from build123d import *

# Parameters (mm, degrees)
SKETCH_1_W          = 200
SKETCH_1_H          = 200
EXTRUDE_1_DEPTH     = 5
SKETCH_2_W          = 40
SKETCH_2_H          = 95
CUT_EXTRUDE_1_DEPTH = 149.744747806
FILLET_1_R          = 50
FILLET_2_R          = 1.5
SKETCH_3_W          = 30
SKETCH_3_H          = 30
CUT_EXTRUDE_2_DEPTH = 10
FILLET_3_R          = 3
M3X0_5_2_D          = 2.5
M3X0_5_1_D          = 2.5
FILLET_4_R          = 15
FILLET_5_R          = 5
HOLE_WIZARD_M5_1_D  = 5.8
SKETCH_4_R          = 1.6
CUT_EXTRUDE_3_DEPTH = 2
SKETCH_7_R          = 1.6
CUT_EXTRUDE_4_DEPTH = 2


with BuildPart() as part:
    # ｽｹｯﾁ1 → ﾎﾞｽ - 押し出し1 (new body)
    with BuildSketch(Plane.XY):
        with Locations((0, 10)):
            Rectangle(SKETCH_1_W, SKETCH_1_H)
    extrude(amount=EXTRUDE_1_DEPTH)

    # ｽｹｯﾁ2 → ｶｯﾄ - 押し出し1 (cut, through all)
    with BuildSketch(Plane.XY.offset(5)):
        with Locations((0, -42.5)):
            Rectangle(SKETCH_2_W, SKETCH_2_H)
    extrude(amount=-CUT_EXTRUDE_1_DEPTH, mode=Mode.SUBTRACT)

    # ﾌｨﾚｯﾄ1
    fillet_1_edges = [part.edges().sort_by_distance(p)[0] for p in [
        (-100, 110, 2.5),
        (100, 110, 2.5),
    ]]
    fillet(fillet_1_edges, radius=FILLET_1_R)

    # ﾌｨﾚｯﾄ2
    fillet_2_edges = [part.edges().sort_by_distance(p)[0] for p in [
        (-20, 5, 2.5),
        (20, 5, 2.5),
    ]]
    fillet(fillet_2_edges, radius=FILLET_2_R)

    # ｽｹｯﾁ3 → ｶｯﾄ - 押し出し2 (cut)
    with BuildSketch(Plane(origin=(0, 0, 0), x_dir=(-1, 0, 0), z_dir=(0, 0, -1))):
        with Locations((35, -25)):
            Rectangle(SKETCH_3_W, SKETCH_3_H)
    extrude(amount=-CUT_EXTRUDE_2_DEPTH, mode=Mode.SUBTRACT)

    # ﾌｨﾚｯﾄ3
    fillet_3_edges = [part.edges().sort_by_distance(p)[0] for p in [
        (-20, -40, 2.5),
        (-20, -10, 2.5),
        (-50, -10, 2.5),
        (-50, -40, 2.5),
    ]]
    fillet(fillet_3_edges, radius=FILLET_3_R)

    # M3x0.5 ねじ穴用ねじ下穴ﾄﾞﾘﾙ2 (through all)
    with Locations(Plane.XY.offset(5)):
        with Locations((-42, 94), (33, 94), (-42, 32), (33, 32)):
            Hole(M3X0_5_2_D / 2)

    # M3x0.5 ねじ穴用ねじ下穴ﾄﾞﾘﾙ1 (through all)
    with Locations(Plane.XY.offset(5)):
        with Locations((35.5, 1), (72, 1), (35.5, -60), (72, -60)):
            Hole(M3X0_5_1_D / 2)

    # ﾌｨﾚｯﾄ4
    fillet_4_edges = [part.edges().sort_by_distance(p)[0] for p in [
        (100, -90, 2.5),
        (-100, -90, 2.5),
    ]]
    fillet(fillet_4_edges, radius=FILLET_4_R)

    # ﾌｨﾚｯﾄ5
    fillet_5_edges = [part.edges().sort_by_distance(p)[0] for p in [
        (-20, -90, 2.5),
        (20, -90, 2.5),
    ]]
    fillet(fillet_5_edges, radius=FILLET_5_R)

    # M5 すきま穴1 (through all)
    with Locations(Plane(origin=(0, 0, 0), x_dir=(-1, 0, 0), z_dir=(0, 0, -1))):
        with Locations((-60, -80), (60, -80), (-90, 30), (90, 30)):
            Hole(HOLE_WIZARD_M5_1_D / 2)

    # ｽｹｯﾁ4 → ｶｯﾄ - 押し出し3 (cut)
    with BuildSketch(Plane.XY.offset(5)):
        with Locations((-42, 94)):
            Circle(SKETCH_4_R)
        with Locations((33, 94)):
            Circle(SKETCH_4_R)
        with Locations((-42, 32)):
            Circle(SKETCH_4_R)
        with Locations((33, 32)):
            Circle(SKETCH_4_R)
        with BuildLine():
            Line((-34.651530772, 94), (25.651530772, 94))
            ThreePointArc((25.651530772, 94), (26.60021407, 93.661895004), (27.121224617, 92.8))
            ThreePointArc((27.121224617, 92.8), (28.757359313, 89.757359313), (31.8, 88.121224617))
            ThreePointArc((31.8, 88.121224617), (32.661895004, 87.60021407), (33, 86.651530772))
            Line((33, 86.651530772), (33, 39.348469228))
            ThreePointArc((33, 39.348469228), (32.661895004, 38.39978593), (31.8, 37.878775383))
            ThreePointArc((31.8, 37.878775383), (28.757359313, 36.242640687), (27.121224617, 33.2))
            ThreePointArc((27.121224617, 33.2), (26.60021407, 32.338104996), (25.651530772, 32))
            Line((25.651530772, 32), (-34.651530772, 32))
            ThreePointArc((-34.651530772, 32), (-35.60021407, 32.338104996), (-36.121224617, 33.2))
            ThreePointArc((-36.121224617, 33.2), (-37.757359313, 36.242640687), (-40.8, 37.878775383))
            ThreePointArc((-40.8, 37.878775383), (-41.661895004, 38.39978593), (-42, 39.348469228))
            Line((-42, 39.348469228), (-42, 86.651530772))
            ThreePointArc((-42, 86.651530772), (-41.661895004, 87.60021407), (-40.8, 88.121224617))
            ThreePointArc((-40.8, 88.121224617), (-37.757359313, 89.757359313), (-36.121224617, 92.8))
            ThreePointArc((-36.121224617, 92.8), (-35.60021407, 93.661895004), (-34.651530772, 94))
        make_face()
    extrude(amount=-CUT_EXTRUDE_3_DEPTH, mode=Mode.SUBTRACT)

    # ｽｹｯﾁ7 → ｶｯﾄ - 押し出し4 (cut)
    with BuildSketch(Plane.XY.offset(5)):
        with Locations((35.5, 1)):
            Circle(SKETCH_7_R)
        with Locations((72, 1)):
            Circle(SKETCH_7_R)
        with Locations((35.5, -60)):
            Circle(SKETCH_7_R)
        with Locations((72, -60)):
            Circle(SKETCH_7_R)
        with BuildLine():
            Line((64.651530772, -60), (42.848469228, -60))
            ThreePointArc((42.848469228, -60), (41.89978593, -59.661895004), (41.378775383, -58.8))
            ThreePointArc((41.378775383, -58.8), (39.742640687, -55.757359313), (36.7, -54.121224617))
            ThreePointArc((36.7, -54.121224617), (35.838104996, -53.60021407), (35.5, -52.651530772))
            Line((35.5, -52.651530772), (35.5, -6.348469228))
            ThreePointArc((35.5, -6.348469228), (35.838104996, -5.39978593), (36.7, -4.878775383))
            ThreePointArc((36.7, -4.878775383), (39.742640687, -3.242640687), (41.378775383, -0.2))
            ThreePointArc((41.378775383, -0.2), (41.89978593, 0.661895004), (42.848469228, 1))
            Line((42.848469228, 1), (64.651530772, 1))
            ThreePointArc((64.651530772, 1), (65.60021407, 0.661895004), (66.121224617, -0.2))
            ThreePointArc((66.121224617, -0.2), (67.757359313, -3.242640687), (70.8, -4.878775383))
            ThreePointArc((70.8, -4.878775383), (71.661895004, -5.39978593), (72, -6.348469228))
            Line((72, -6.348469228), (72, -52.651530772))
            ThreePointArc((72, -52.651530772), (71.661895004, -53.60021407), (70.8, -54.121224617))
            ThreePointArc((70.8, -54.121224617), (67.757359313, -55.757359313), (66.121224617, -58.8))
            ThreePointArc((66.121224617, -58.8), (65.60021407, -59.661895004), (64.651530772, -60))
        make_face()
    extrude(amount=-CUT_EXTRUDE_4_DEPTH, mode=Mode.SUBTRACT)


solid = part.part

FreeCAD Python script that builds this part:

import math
import FreeCAD as App
import Part
import Sketcher


def edges_at(feature, points):
    """Names of the edges that pass closest to the given points."""
    edges = feature.Shape.Edges
    near = lambda p: min(range(len(edges)), key=lambda i: edges[i].distToShape(Part.Vertex(*p))[0])
    return sorted({f"Edge{near(p) + 1}" for p in points})

doc = App.newDocument("Part")
body = doc.addObject("PartDesign::Body", "Body")

# Sketch on XY plane
sketch1 = body.newObject("Sketcher::SketchObject", "Sketch")
sketch1.AttachmentSupport = (doc.getObject("XY_Plane"), [""])
sketch1.MapMode = "FlatFace"
sketch1.addGeometry([
    Part.LineSegment(App.Vector(-100, 110, 0), App.Vector(-100, -90, 0)),
    Part.LineSegment(App.Vector(-100, -90, 0), App.Vector(100, -90, 0)),
    Part.LineSegment(App.Vector(100, -90, 0), App.Vector(100, 110, 0)),
    Part.LineSegment(App.Vector(100, 110, 0), App.Vector(-100, 110, 0)),
], False)
sketch1.addConstraint([
    Sketcher.Constraint("Coincident", 0, 2, 1, 1),
    Sketcher.Constraint("Coincident", 1, 2, 2, 1),
    Sketcher.Constraint("Coincident", 2, 2, 3, 1),
    Sketcher.Constraint("Coincident", 3, 2, 0, 1),
    Sketcher.Constraint("Vertical", 0),
    Sketcher.Constraint("Horizontal", 1),
    Sketcher.Constraint("Vertical", 2),
    Sketcher.Constraint("Horizontal", 3),
    Sketcher.Constraint("Equal", 3, 0),
    Sketcher.Constraint("DistanceX", 1, 1, 1, 2, 200.0),
    Sketcher.Constraint("DistanceX", 0, 2, -1, 1, 100.0),
    Sketcher.Constraint("DistanceY", 0, 2, -1, 1, 90.0),
])
pad1 = body.newObject("PartDesign::Pad", "Pad")
pad1.Profile = sketch1
pad1.Length = 5

# Sketch on XY plane
sketch2 = body.newObject("Sketcher::SketchObject", "Sketch001")
sketch2.AttachmentSupport = (doc.getObject("XY_Plane"), [""])
sketch2.MapMode = "FlatFace"
sketch2.AttachmentOffset = App.Placement(App.Vector(0, 0, 5), App.Rotation())
sketch2.addGeometry([
    Part.LineSegment(App.Vector(-20, 5, 0), App.Vector(-20, -90, 0)),
    Part.LineSegment(App.Vector(-20, -90, 0), App.Vector(20, -90, 0)),
    Part.LineSegment(App.Vector(20, -90, 0), App.Vector(20, 5, 0)),
    Part.LineSegment(App.Vector(20, 5, 0), App.Vector(-20, 5, 0)),
], False)
sketch2.addConstraint([
    Sketcher.Constraint("Coincident", 0, 2, 1, 1),
    Sketcher.Constraint("Coincident", 1, 2, 2, 1),
    Sketcher.Constraint("Coincident", 2, 2, 3, 1),
    Sketcher.Constraint("Coincident", 3, 2, 0, 1),
    Sketcher.Constraint("Vertical", 0),
    Sketcher.Constraint("Horizontal", 1),
    Sketcher.Constraint("Vertical", 2),
    Sketcher.Constraint("Horizontal", 3),
    Sketcher.Constraint("DistanceX", 1, 1, 1, 2, 40.0),
    Sketcher.Constraint("DistanceY", 0, 2, 0, 1, 95.0),
    Sketcher.Constraint("DistanceX", 0, 2, -1, 1, 20.0),
    Sketcher.Constraint("DistanceY", 0, 2, -1, 1, 90.0),
])
pocket1 = body.newObject("PartDesign::Pocket", "Pocket")
pocket1.Profile = sketch2
pocket1.Type = "ThroughAll"
doc.recompute()

fillet = body.newObject("PartDesign::Fillet", "Fillet")
fillet.Base = (pocket1, edges_at(pocket1, [(-100, 110, 2.5), (100, 110, 2.5)]))
fillet.Radius = 50
doc.recompute()

fillet2 = body.newObject("PartDesign::Fillet", "Fillet001")
fillet2.Base = (fillet, edges_at(fillet, [(-20, 5, 2.5), (20, 5, 2.5)]))
fillet2.Radius = 1.5

# Sketch on XY plane
sketch3 = body.newObject("Sketcher::SketchObject", "Sketch002")
sketch3.AttachmentSupport = (doc.getObject("XY_Plane"), [""])
sketch3.MapMode = "FlatFace"
sketch3.addGeometry([
    Part.LineSegment(App.Vector(-20, -10, 0), App.Vector(-20, -40, 0)),
    Part.LineSegment(App.Vector(-20, -40, 0), App.Vector(-50, -40, 0)),
    Part.LineSegment(App.Vector(-50, -40, 0), App.Vector(-50, -10, 0)),
    Part.LineSegment(App.Vector(-50, -10, 0), App.Vector(-20, -10, 0)),
], False)
sketch3.addConstraint([
    Sketcher.Constraint("Coincident", 0, 2, 1, 1),
    Sketcher.Constraint("Coincident", 1, 2, 2, 1),
    Sketcher.Constraint("Coincident", 2, 2, 3, 1),
    Sketcher.Constraint("Coincident", 3, 2, 0, 1),
    Sketcher.Constraint("Vertical", 0),
    Sketcher.Constraint("Horizontal", 1),
    Sketcher.Constraint("Vertical", 2),
    Sketcher.Constraint("Horizontal", 3),
    Sketcher.Constraint("Equal", 3, 0),
    Sketcher.Constraint("DistanceX", 1, 2, 1, 1, 30.0),
    Sketcher.Constraint("DistanceX", 0, 2, -1, 1, 20.0),
    Sketcher.Constraint("DistanceY", 0, 2, -1, 1, 40.0),
])
pocket2 = body.newObject("PartDesign::Pocket", "Pocket001")
pocket2.Profile = sketch3
pocket2.Length = 10
pocket2.Reversed = True
doc.recompute()

fillet3 = body.newObject("PartDesign::Fillet", "Fillet002")
fillet3.Base = (pocket2, edges_at(pocket2, [
    (-20, -40, 2.5),
    (-20, -10, 2.5),
    (-50, -10, 2.5),
    (-50, -40, 2.5),
]))
fillet3.Radius = 3

# Sketch on XY plane
sketch4 = body.newObject("Sketcher::SketchObject", "Sketch003")
sketch4.AttachmentSupport = (doc.getObject("XY_Plane"), [""])
sketch4.MapMode = "FlatFace"
sketch4.AttachmentOffset = App.Placement(App.Vector(0, 0, 5), App.Rotation())
sketch4.addGeometry([
    Part.Circle(App.Vector(-42, 94, 0), App.Vector(0, 0, 1), 1.2),
    Part.Circle(App.Vector(33, 94, 0), App.Vector(0, 0, 1), 1.2),
    Part.Circle(App.Vector(-42, 32, 0), App.Vector(0, 0, 1), 1.2),
    Part.Circle(App.Vector(33, 32, 0), App.Vector(0, 0, 1), 1.2),
], False)
sketch4.addConstraint([
    Sketcher.Constraint("Equal", 0, 1),
    Sketcher.Constraint("Equal", 1, 2),
    Sketcher.Constraint("Equal", 2, 3),
    Sketcher.Constraint("Horizontal", 0, 3, 1, 3),
    Sketcher.Constraint("Horizontal", 2, 3, 3, 3),
    Sketcher.Constraint("Vertical", 0, 3, 2, 3),
    Sketcher.Constraint("Vertical", 1, 3, 3, 3),
    Sketcher.Constraint("Diameter", 0, 2.5),
    Sketcher.Constraint("DistanceX", 0, 3, -1, 1, 42.0),
    Sketcher.Constraint("DistanceY", -1, 1, 0, 3, 94.0),
    Sketcher.Constraint("DistanceX", -1, 1, 1, 3, 33.0),
    Sketcher.Constraint("DistanceY", -1, 1, 2, 3, 32.0),
])
doc.recompute()
hole = body.newObject("PartDesign::Hole", "Hole")
hole.Profile = sketch4
hole.ThreadType = "None"
hole.Diameter = 2.5
hole.DepthType = "ThroughAll"

# Sketch on XY plane
sketch5 = body.newObject("Sketcher::SketchObject", "Sketch004")
sketch5.AttachmentSupport = (doc.getObject("XY_Plane"), [""])
sketch5.MapMode = "FlatFace"
sketch5.AttachmentOffset = App.Placement(App.Vector(0, 0, 5), App.Rotation())
sketch5.addGeometry([
    Part.Circle(App.Vector(35.5, 1, 0), App.Vector(0, 0, 1), 1.2),
    Part.Circle(App.Vector(72, 1, 0), App.Vector(0, 0, 1), 1.2),
    Part.Circle(App.Vector(35.5, -60, 0), App.Vector(0, 0, 1), 1.2),
    Part.Circle(App.Vector(72, -60, 0), App.Vector(0, 0, 1), 1.2),
], False)
sketch5.addConstraint([
    Sketcher.Constraint("Equal", 0, 1),
    Sketcher.Constraint("Equal", 1, 2),
    Sketcher.Constraint("Equal", 2, 3),
    Sketcher.Constraint("Horizontal", 0, 3, 1, 3),
    Sketcher.Constraint("Horizontal", 2, 3, 3, 3),
    Sketcher.Constraint("Vertical", 0, 3, 2, 3),
    Sketcher.Constraint("Vertical", 1, 3, 3, 3),
    Sketcher.Constraint("Diameter", 0, 2.5),
    Sketcher.Constraint("DistanceY", -1, 1, 0, 3, 1.0),
    Sketcher.Constraint("DistanceX", -1, 1, 1, 3, 72.0),
    Sketcher.Constraint("DistanceY", 2, 3, -1, 1, 60.0),
    Sketcher.Constraint("DistanceX", -1, 1, 0, 3, 35.5),
])
doc.recompute()
hole2 = body.newObject("PartDesign::Hole", "Hole001")
hole2.Profile = sketch5
hole2.ThreadType = "None"
hole2.Diameter = 2.5
hole2.DepthType = "ThroughAll"
doc.recompute()

fillet4 = body.newObject("PartDesign::Fillet", "Fillet003")
fillet4.Base = (hole2, edges_at(hole2, [(100, -90, 2.5), (-100, -90, 2.5)]))
fillet4.Radius = 15
doc.recompute()

fillet5 = body.newObject("PartDesign::Fillet", "Fillet004")
fillet5.Base = (fillet4, edges_at(fillet4, [(-20, -90, 2.5), (20, -90, 2.5)]))
fillet5.Radius = 5

# Sketch on XY plane
sketch6 = body.newObject("Sketcher::SketchObject", "Sketch005")
sketch6.AttachmentSupport = (doc.getObject("XY_Plane"), [""])
sketch6.MapMode = "FlatFace"
sketch6.addGeometry([
    Part.Circle(App.Vector(60, -80, 0), App.Vector(0, 0, 1), 2.9),
    Part.Circle(App.Vector(-60, -80, 0), App.Vector(0, 0, 1), 2.9),
    Part.Circle(App.Vector(90, 30, 0), App.Vector(0, 0, 1), 2.9),
    Part.Circle(App.Vector(-90, 30, 0), App.Vector(0, 0, 1), 2.9),
], False)
sketch6.addConstraint([
    Sketcher.Constraint("Equal", 0, 1),
    Sketcher.Constraint("Equal", 1, 2),
    Sketcher.Constraint("Equal", 2, 3),
    Sketcher.Constraint("Symmetric", 0, 3, 1, 3, -2),
    Sketcher.Constraint("Symmetric", 2, 3, 3, 3, -2),
    Sketcher.Constraint("Diameter", 0, 5.8),
    Sketcher.Constraint("DistanceX", -1, 1, 0, 3, 60.0),
    Sketcher.Constraint("DistanceY", 0, 3, -1, 1, 80.0),
    Sketcher.Constraint("DistanceX", -1, 1, 2, 3, 90.0),
    Sketcher.Constraint("DistanceY", -1, 1, 2, 3, 30.0),
])
doc.recompute()
hole3 = body.newObject("PartDesign::Hole", "Hole002")
hole3.Profile = sketch6
hole3.ThreadType = "None"
hole3.Diameter = 5.8
hole3.DepthType = "ThroughAll"
hole3.Reversed = True

# Sketch on XY plane
sketch7 = body.newObject("Sketcher::SketchObject", "Sketch006")
sketch7.AttachmentSupport = (doc.getObject("XY_Plane"), [""])
sketch7.MapMode = "FlatFace"
sketch7.AttachmentOffset = App.Placement(App.Vector(0, 0, 5), App.Rotation())
sketch7.addGeometry([
    Part.Circle(App.Vector(-42, 94, 0), App.Vector(0, 0, 1), 1.6),  # 0
    Part.Circle(App.Vector(33, 94, 0), App.Vector(0, 0, 1), 1.6),  # 1
    Part.Circle(App.Vector(-42, 32, 0), App.Vector(0, 0, 1), 1.6),  # 2
    Part.Circle(App.Vector(33, 32, 0), App.Vector(0, 0, 1), 1.6),  # 3
    Part.LineSegment(App.Vector(25.7, 94, 0), App.Vector(-34.7, 94, 0)),  # 4
    Part.ArcOfCircle(Part.Circle(App.Vector(-34.7, 92.5, 0), App.Vector(0, 0, 1), 1.5), math.radians(90), math.radians(168)),  # 5
    Part.ArcOfCircle(Part.Circle(App.Vector(-42, 94, 0), App.Vector(0, 0, 1), 6), math.radians(-78), math.radians(-12)),  # 6
    Part.ArcOfCircle(Part.Circle(App.Vector(-40.5, 86.7, 0), App.Vector(0, 0, 1), 1.5), math.radians(102), math.radians(180)),  # 7
    Part.LineSegment(App.Vector(-42, 86.7, 0), App.Vector(-42, 39.3, 0)),  # 8
    Part.ArcOfCircle(Part.Circle(App.Vector(-40.5, 39.3, 0), App.Vector(0, 0, 1), 1.5), math.radians(180), math.radians(258)),  # 9
    Part.ArcOfCircle(Part.Circle(App.Vector(-42, 32, 0), App.Vector(0, 0, 1), 6), math.radians(12), math.radians(78)),  # 10
    Part.ArcOfCircle(Part.Circle(App.Vector(-34.7, 33.5, 0), App.Vector(0, 0, 1), 1.5), math.radians(-168), math.radians(-90)),  # 11
    Part.LineSegment(App.Vector(-34.7, 32, 0), App.Vector(25.7, 32, 0)),  # 12
    Part.ArcOfCircle(Part.Circle(App.Vector(25.7, 33.5, 0), App.Vector(0, 0, 1), 1.5), math.radians(-90), math.radians(-12)),  # 13
    Part.ArcOfCircle(Part.Circle(App.Vector(33, 32, 0), App.Vector(0, 0, 1), 6), math.radians(102), math.radians(168)),  # 14
    Part.ArcOfCircle(Part.Circle(App.Vector(31.5, 39.3, 0), App.Vector(0, 0, 1), 1.5), math.radians(-78), math.radians(0)),  # 15
    Part.LineSegment(App.Vector(33, 39.3, 0), App.Vector(33, 86.7, 0)),  # 16
    Part.ArcOfCircle(Part.Circle(App.Vector(31.5, 86.7, 0), App.Vector(0, 0, 1), 1.5), math.radians(0), math.radians(78)),  # 17
    Part.ArcOfCircle(Part.Circle(App.Vector(33, 94, 0), App.Vector(0, 0, 1), 6), math.radians(-168), math.radians(-102)),  # 18
    Part.ArcOfCircle(Part.Circle(App.Vector(25.7, 92.5, 0), App.Vector(0, 0, 1), 1.5), math.radians(12), math.radians(90)),  # 19
], False)
sketch7.addConstraint([
    Sketcher.Constraint("Tangent", 4, 2, 5, 1),
    Sketcher.Constraint("Tangent", 5, 2, 6, 2),
    Sketcher.Constraint("Tangent", 6, 1, 7, 1),
    Sketcher.Constraint("Tangent", 7, 2, 8, 1),
    Sketcher.Constraint("Tangent", 8, 2, 9, 1),
    Sketcher.Constraint("Tangent", 9, 2, 10, 2),
    Sketcher.Constraint("Tangent", 10, 1, 11, 1),
    Sketcher.Constraint("Tangent", 11, 2, 12, 1),
    Sketcher.Constraint("Tangent", 12, 2, 13, 1),
    Sketcher.Constraint("Tangent", 13, 2, 14, 2),
    Sketcher.Constraint("Tangent", 14, 1, 15, 1),
    Sketcher.Constraint("Tangent", 15, 2, 16, 1),
    Sketcher.Constraint("Tangent", 16, 2, 17, 1),
    Sketcher.Constraint("Tangent", 17, 2, 18, 2),
    Sketcher.Constraint("Tangent", 18, 1, 19, 1),
    Sketcher.Constraint("Tangent", 19, 2, 4, 1),
    Sketcher.Constraint("Horizontal", 4),
    Sketcher.Constraint("Vertical", 8),
    Sketcher.Constraint("Horizontal", 12),
    Sketcher.Constraint("Vertical", 16),
    Sketcher.Constraint("Coincident", 6, 3, 0, 3),
    Sketcher.Constraint("Coincident", 10, 3, 2, 3),
    Sketcher.Constraint("Coincident", 14, 3, 3, 3),
    Sketcher.Constraint("Coincident", 18, 3, 1, 3),
    Sketcher.Constraint("Equal", 0, 1),
    Sketcher.Constraint("Equal", 1, 2),
    Sketcher.Constraint("Equal", 2, 3),
    Sketcher.Constraint("Equal", 5, 7),
    Sketcher.Constraint("Equal", 7, 9),
    Sketcher.Constraint("Equal", 6, 10),
    Sketcher.Constraint("Equal", 9, 11),
    Sketcher.Constraint("Equal", 11, 13),
    Sketcher.Constraint("Equal", 10, 14),
    Sketcher.Constraint("Equal", 13, 15),
    Sketcher.Constraint("Equal", 15, 17),
    Sketcher.Constraint("Equal", 14, 18),
    Sketcher.Constraint("Equal", 17, 19),
    Sketcher.Constraint("Horizontal", 0, 3, 1, 3),
    Sketcher.Constraint("Horizontal", 2, 3, 3, 3),
    Sketcher.Constraint("Horizontal", 9, 3, 15, 3),
    Sketcher.Constraint("Horizontal", 7, 3, 17, 3),
    Sketcher.Constraint("Horizontal", 18, 3, 4, 2),
    Sketcher.Constraint("Horizontal", 14, 3, 11, 2),
    Sketcher.Constraint("Vertical", 0, 3, 2, 3),
    Sketcher.Constraint("Vertical", 10, 3, 7, 2),
    Sketcher.Constraint("Radius", 6, 6.0),
    Sketcher.Constraint("Diameter", 0, 3.2),
    Sketcher.Constraint("Radius", 5, 1.5),
    Sketcher.Constraint("DistanceX", 0, 3, -1, 1, 42.0),
    Sketcher.Constraint("DistanceY", -1, 1, 0, 3, 94.0),
    Sketcher.Constraint("DistanceX", -1, 1, 1, 3, 33.0),
    Sketcher.Constraint("DistanceY", -1, 1, 2, 3, 32.0),
])
pocket3 = body.newObject("PartDesign::Pocket", "Pocket002")
pocket3.Profile = sketch7
pocket3.Length = 2

# Sketch on XY plane
sketch8 = body.newObject("Sketcher::SketchObject", "Sketch007")
sketch8.AttachmentSupport = (doc.getObject("XY_Plane"), [""])
sketch8.MapMode = "FlatFace"
sketch8.AttachmentOffset = App.Placement(App.Vector(0, 0, 5), App.Rotation())
sketch8.addGeometry([
    Part.Circle(App.Vector(35.5, 1, 0), App.Vector(0, 0, 1), 1.6),  # 0
    Part.Circle(App.Vector(72, 1, 0), App.Vector(0, 0, 1), 1.6),  # 1
    Part.Circle(App.Vector(35.5, -60, 0), App.Vector(0, 0, 1), 1.6),  # 2
    Part.Circle(App.Vector(72, -60, 0), App.Vector(0, 0, 1), 1.6),  # 3
    Part.LineSegment(App.Vector(42.8, -60, 0), App.Vector(64.7, -60, 0)),  # 4
    Part.ArcOfCircle(Part.Circle(App.Vector(64.7, -58.5, 0), App.Vector(0, 0, 1), 1.5), math.radians(-90), math.radians(-12)),  # 5
    Part.ArcOfCircle(Part.Circle(App.Vector(72, -60, 0), App.Vector(0, 0, 1), 6), math.radians(102), math.radians(168)),  # 6
    Part.ArcOfCircle(Part.Circle(App.Vector(70.5, -52.7, 0), App.Vector(0, 0, 1), 1.5), math.radians(-78), math.radians(0)),  # 7
    Part.LineSegment(App.Vector(72, -52.7, 0), App.Vector(72, -6.3, 0)),  # 8
    Part.ArcOfCircle(Part.Circle(App.Vector(70.5, -6.3, 0), App.Vector(0, 0, 1), 1.5), math.radians(0), math.radians(78)),  # 9
    Part.ArcOfCircle(Part.Circle(App.Vector(72, 1, 0), App.Vector(0, 0, 1), 6), math.radians(-168), math.radians(-102)),  # 10
    Part.ArcOfCircle(Part.Circle(App.Vector(64.7, -0.5, 0), App.Vector(0, 0, 1), 1.5), math.radians(12), math.radians(90)),  # 11
    Part.LineSegment(App.Vector(64.7, 1, 0), App.Vector(42.8, 1, 0)),  # 12
    Part.ArcOfCircle(Part.Circle(App.Vector(42.8, -0.5, 0), App.Vector(0, 0, 1), 1.5), math.radians(90), math.radians(168)),  # 13
    Part.ArcOfCircle(Part.Circle(App.Vector(35.5, 1, 0), App.Vector(0, 0, 1), 6), math.radians(-78), math.radians(-12)),  # 14
    Part.ArcOfCircle(Part.Circle(App.Vector(37, -6.3, 0), App.Vector(0, 0, 1), 1.5), math.radians(102), math.radians(180)),  # 15
    Part.LineSegment(App.Vector(35.5, -6.3, 0), App.Vector(35.5, -52.7, 0)),  # 16
    Part.ArcOfCircle(Part.Circle(App.Vector(37, -52.7, 0), App.Vector(0, 0, 1), 1.5), math.radians(180), math.radians(258)),  # 17
    Part.ArcOfCircle(Part.Circle(App.Vector(35.5, -60, 0), App.Vector(0, 0, 1), 6), math.radians(12), math.radians(78)),  # 18
    Part.ArcOfCircle(Part.Circle(App.Vector(42.8, -58.5, 0), App.Vector(0, 0, 1), 1.5), math.radians(-168), math.radians(-90)),  # 19
], False)
sketch8.addConstraint([
    Sketcher.Constraint("Tangent", 4, 2, 5, 1),
    Sketcher.Constraint("Tangent", 5, 2, 6, 2),
    Sketcher.Constraint("Tangent", 6, 1, 7, 1),
    Sketcher.Constraint("Tangent", 7, 2, 8, 1),
    Sketcher.Constraint("Tangent", 8, 2, 9, 1),
    Sketcher.Constraint("Tangent", 9, 2, 10, 2),
    Sketcher.Constraint("Tangent", 10, 1, 11, 1),
    Sketcher.Constraint("Tangent", 11, 2, 12, 1),
    Sketcher.Constraint("Tangent", 12, 2, 13, 1),
    Sketcher.Constraint("Tangent", 13, 2, 14, 2),
    Sketcher.Constraint("Tangent", 14, 1, 15, 1),
    Sketcher.Constraint("Tangent", 15, 2, 16, 1),
    Sketcher.Constraint("Tangent", 16, 2, 17, 1),
    Sketcher.Constraint("Tangent", 17, 2, 18, 2),
    Sketcher.Constraint("Tangent", 18, 1, 19, 1),
    Sketcher.Constraint("Tangent", 19, 2, 4, 1),
    Sketcher.Constraint("Horizontal", 4),
    Sketcher.Constraint("Vertical", 8),
    Sketcher.Constraint("Horizontal", 12),
    Sketcher.Constraint("Vertical", 16),
    Sketcher.Constraint("Coincident", 6, 3, 3, 3),
    Sketcher.Constraint("Coincident", 10, 3, 1, 3),
    Sketcher.Constraint("Coincident", 14, 3, 0, 3),
    Sketcher.Constraint("Coincident", 18, 3, 2, 3),
    Sketcher.Constraint("Equal", 0, 1),
    Sketcher.Constraint("Equal", 1, 2),
    Sketcher.Constraint("Equal", 2, 3),
    Sketcher.Constraint("Equal", 5, 7),
    Sketcher.Constraint("Equal", 7, 9),
    Sketcher.Constraint("Equal", 6, 10),
    Sketcher.Constraint("Equal", 9, 11),
    Sketcher.Constraint("Equal", 11, 13),
    Sketcher.Constraint("Equal", 10, 14),
    Sketcher.Constraint("Equal", 13, 15),
    Sketcher.Constraint("Equal", 15, 17),
    Sketcher.Constraint("Equal", 14, 18),
    Sketcher.Constraint("Equal", 17, 19),
    Sketcher.Constraint("Horizontal", 0, 3, 1, 3),
    Sketcher.Constraint("Horizontal", 2, 3, 3, 3),
    Sketcher.Constraint("Horizontal", 9, 3, 15, 3),
    Sketcher.Constraint("Horizontal", 7, 3, 17, 3),
    Sketcher.Constraint("Horizontal", 18, 3, 4, 2),
    Sketcher.Constraint("Horizontal", 14, 3, 11, 2),
    Sketcher.Constraint("Vertical", 0, 3, 2, 3),
    Sketcher.Constraint("Vertical", 10, 3, 7, 2),
    Sketcher.Constraint("Radius", 6, 6.0),
    Sketcher.Constraint("Diameter", 0, 3.2),
    Sketcher.Constraint("Radius", 5, 1.5),
    Sketcher.Constraint("DistanceY", -1, 1, 0, 3, 1.0),
    Sketcher.Constraint("DistanceX", -1, 1, 1, 3, 72.0),
    Sketcher.Constraint("DistanceY", 2, 3, -1, 1, 60.0),
    Sketcher.Constraint("DistanceX", -1, 1, 15, 3, 37.0),
])
pocket4 = body.newObject("PartDesign::Pocket", "Pocket003")
pocket4.Profile = sketch8
pocket4.Length = 2

doc.recompute()
